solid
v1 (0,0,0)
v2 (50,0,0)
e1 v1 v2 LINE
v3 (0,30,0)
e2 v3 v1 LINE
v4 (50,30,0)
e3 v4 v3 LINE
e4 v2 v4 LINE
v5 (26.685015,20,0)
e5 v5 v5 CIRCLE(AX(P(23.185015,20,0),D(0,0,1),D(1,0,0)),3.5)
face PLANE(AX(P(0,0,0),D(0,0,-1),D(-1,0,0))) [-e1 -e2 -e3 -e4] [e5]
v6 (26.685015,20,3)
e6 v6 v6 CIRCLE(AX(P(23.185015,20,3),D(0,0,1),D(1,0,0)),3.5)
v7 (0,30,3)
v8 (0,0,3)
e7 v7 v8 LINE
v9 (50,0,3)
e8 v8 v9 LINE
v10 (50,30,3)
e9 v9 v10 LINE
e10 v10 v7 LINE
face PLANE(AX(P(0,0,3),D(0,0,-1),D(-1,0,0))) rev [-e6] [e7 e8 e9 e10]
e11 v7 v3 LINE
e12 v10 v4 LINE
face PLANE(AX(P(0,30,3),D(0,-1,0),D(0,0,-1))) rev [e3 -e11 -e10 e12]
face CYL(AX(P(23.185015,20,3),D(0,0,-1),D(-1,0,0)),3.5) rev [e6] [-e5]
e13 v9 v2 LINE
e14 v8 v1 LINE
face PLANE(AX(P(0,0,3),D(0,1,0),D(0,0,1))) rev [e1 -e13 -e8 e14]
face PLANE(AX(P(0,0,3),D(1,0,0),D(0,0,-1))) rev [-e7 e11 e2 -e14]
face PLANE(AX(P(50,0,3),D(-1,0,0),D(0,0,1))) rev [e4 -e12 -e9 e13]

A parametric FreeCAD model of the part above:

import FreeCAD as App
import Part
import Sketcher
from FreeCAD import Vector
Q = App.Units.Quantity


def add_polygon(sketch, points):
    """Adds a closed chain of lines whose ends are joined by coincident constraints."""
    first, n = sketch.GeometryCount, len(points)
    for a, b in zip(points, points[1:] + points[:1]):
        sketch.addGeometry(Part.LineSegment(App.Vector(*a, 0), App.Vector(*b, 0)), False)
    for i in range(n):
        sketch.addConstraint(Sketcher.Constraint("Coincident", first + i, 2, first + (i + 1) % n, 1))

doc = App.newDocument("Part")
params = doc.addObject("Spreadsheet::Sheet", "Params")
for row, (alias, value) in enumerate([
    ("sketch1_diameter", "7 mm"),
    ("sketch1_width", "50 mm"),
    ("sketch1_height", "30 mm"),
    ("pad1_length", "3 mm"),
], start=1):
    params.set(f"A{row}", alias)
    params.set(f"B{row}", "=" + value)
    params.setAlias(f"B{row}", alias)

body = doc.addObject("PartDesign::Body", "Body")

# Sketch on XY plane
sketch1 = body.newObject("Sketcher::SketchObject", "Sketch")
sketch1.AttachmentSupport = (doc.getObject("XY_Plane"), [""])
sketch1.MapMode = "FlatFace"
add_polygon(sketch1, [(0, 30), (0, 0), (50, 0), (50, 30)])  # lines 0-3
sketch1.addGeometry(Part.Circle(Vector(23.2, 20, 0), Vector(0, 0, 1), 3.5), False)  # 4
sketch1.addConstraint([
    Sketcher.Constraint("Vertical", 0),
    Sketcher.Constraint("Horizontal", 1),
    Sketcher.Constraint("Vertical", 2),
    Sketcher.Constraint("Horizontal", 3),
    Sketcher.Constraint("Coincident", 0, 2, -1, 1),
    Sketcher.Constraint("Diameter", 4, Q("7 mm")),
    Sketcher.Constraint("DistanceX", 1, 1, 1, 2, Q("50 mm")),
    Sketcher.Constraint("DistanceY", 0, 2, 0, 1, Q("30 mm")),
    Sketcher.Constraint("DistanceY", -1, 1, 4, 3, Q("20 mm")),
    Sketcher.Constraint("DistanceX", -1, 1, 4, 3, Q("23.185015 mm")),
])
sketch1.setExpression("Constraints[9]", "Params.sketch1_diameter")
sketch1.setExpression("Constraints[10]", "Params.sketch1_width")
sketch1.setExpression("Constraints[11]", "Params.sketch1_height")
pad1 = body.newObject("PartDesign::Pad", "Pad")
pad1.Profile = sketch1
pad1.setExpression("Length", "Params.pad1_length")

doc.recompute()
